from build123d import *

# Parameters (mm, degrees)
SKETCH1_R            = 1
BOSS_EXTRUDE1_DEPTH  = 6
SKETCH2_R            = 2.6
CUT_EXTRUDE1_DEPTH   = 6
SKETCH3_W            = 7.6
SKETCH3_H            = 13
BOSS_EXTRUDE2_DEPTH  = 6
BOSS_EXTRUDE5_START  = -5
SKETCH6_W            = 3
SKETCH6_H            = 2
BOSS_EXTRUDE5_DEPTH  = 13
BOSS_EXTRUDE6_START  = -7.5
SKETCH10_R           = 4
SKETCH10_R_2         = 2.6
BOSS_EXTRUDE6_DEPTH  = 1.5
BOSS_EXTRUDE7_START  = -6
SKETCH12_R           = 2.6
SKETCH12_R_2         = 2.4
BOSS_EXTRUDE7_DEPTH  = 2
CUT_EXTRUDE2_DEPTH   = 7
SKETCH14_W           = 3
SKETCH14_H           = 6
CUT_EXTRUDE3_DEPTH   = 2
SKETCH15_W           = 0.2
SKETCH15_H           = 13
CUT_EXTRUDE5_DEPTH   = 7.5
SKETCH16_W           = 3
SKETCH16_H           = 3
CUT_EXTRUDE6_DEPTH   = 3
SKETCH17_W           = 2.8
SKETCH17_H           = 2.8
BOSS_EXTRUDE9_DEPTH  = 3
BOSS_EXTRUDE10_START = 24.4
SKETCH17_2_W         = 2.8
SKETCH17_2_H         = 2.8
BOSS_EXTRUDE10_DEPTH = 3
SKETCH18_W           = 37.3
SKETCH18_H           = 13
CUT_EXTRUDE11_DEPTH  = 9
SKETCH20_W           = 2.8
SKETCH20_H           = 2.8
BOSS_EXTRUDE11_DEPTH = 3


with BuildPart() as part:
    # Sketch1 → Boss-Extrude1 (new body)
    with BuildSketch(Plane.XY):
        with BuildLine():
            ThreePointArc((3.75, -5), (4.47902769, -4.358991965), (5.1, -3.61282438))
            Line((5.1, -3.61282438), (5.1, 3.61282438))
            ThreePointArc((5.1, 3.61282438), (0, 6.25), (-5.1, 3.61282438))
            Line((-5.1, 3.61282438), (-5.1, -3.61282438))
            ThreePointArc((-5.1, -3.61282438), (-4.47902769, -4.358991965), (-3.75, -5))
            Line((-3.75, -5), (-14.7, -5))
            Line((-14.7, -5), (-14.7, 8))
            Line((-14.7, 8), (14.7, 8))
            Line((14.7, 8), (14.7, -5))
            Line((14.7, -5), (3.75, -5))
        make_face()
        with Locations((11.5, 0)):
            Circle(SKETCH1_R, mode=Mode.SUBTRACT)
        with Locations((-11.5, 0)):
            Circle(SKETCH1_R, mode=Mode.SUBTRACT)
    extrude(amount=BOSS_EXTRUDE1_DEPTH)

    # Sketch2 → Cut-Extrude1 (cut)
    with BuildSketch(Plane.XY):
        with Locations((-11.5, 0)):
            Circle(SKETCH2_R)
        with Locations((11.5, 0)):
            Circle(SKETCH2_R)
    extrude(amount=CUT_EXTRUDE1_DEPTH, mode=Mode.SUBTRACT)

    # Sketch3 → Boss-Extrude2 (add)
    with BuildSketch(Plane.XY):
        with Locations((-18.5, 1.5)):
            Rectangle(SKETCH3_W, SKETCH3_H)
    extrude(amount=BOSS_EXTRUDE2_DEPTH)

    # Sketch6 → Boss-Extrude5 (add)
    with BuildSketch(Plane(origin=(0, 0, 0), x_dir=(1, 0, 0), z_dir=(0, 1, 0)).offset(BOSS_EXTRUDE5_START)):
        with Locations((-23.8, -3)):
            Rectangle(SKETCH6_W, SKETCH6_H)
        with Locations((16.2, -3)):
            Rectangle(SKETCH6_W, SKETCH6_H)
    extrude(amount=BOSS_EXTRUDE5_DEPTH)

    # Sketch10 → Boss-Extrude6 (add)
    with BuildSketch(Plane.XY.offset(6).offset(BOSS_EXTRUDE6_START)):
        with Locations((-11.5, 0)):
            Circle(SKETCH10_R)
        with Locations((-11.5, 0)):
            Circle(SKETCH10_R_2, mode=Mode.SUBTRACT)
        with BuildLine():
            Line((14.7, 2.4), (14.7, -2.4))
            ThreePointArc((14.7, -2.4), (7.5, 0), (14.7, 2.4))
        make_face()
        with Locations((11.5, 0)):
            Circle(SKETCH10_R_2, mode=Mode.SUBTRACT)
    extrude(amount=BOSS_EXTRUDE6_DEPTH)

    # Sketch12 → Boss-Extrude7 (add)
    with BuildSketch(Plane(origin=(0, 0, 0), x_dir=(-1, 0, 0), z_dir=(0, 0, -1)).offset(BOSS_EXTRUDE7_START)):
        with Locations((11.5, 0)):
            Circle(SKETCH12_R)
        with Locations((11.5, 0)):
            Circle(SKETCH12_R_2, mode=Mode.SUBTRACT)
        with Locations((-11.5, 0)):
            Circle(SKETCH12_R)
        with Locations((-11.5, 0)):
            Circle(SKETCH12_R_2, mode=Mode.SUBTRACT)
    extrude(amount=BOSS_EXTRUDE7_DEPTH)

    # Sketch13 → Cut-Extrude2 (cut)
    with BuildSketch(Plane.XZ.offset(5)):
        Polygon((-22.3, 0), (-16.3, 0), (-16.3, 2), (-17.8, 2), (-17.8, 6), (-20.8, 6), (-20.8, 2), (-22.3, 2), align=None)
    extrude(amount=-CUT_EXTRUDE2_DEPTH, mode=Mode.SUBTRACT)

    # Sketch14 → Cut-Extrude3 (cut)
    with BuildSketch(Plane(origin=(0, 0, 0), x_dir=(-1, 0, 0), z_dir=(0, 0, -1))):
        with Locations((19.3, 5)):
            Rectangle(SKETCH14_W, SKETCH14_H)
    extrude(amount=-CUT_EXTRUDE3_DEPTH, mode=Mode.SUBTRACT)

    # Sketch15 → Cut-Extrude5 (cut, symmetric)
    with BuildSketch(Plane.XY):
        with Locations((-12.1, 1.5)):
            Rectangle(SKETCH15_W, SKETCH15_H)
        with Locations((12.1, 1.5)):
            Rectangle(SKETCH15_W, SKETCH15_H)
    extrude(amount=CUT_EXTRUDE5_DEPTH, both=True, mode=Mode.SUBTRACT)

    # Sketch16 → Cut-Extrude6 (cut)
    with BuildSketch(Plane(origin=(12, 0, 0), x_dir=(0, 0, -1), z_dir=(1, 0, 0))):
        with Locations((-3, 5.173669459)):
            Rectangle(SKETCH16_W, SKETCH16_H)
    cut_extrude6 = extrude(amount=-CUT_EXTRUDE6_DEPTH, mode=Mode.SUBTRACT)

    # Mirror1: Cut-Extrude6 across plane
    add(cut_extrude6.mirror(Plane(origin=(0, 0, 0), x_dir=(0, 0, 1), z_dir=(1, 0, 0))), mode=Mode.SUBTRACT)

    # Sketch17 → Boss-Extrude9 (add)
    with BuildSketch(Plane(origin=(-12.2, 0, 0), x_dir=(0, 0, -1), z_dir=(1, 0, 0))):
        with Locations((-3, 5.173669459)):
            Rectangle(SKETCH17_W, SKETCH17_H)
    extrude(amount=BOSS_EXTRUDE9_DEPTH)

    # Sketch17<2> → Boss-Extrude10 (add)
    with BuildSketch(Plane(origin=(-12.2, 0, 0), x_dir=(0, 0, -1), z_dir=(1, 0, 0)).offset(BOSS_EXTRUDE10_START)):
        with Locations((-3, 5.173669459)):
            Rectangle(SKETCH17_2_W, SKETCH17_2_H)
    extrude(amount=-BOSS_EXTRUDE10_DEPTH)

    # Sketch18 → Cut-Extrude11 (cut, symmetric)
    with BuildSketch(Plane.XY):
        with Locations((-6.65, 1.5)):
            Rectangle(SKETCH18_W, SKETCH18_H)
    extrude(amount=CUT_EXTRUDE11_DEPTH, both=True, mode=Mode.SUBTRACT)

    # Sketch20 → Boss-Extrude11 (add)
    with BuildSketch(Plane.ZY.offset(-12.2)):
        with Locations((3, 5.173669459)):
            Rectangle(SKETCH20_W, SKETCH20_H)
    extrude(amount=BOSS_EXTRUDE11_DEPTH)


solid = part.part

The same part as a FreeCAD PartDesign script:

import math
import FreeCAD as App
import Part
import Sketcher
Q = App.Units.Quantity

doc = App.newDocument("Part")
params = doc.addObject("Spreadsheet::Sheet", "Params")
for row, (alias, value) in enumerate([
    ("sketch1_diameter", "2 mm"),
    ("sketch1_height", "13 mm"),
    ("sketch1_radius", "6.25 mm"),
    ("sketch1_width", "29.4 mm"),
    ("pad1_length", "6 mm"),
    ("sketch2_diameter", "5.2 mm"),
    ("pocket1_length", "6 mm"),
    ("sketch3_height", "13 mm"),
    ("sketch3_width", "7.6 mm"),
    ("pad2_length", "6 mm"),
    ("sketch4_width", "3 mm"),
    ("sketch4_height", "2 mm"),
    ("pad3_length", "13 mm"),
    ("sketch5_diameter", "8 mm"),
    ("sketch5_diameter2", "5.2 mm"),
    ("sketch5_height", "4.8 mm"),
    ("pad4_length", "1.5 mm"),
    ("sketch6_diameter", "5.2 mm"),
    ("sketch6_diameter2", "4.8 mm"),
    ("pad5_length", "2 mm"),
    ("sketch7_width", "6 mm"),
    ("sketch7_width2", "3 mm"),
    ("sketch7_height", "2 mm"),
    ("sketch7_height2", "4 mm"),
    ("pocket2_length", "7 mm"),
    ("sketch8_width", "3 mm"),
    ("sketch8_height", "6 mm"),
    ("pocket3_length", "2 mm"),
    ("sketch9_height", "13 mm"),
    ("sketch9_width", "0.2 mm"),
    ("pocket4_length", "15 mm"),
    ("sketch10_width", "3 mm"),
    ("pocket5_length", "3 mm"),
    ("sketch11_width", "2.8 mm"),
    ("pad6_length", "3 mm"),
    ("sketch12_width", "2.8 mm"),
    ("pad7_length", "3 mm"),
    ("sketch13_height", "13 mm"),
    ("sketch13_width", "37.3 mm"),
    ("pocket6_length", "18 mm"),
    ("sketch14_width", "2.8 mm"),
    ("pad8_length", "3 mm"),
], start=1):
    params.set(f"A{row}", alias)
    params.set(f"B{row}", "=" + value)
    params.setAlias(f"B{row}", alias)

body = doc.addObject("PartDesign::Body", "Body")
body.AllowCompound = True

# Sketch on XY plane
sketch1 = doc.addObject("Sketcher::SketchObject", "Sketch")
body.addObject(sketch1)
sketch1.AttachmentSupport = (doc.XY_Plane, [""])
sketch1.MapMode = "FlatFace"
sketch1.addGeometry([
    Part.ArcOfCircle(Part.Circle(App.Vector(0, 0, 0), App.Vector(0, 0, 1), 6.3), math.radians(-53.13), math.radians(-35.31)),  # 0
    Part.LineSegment(App.Vector(3.8, -5, 0), App.Vector(14.7, -5, 0)),  # 1
    Part.LineSegment(App.Vector(14.7, -5, 0), App.Vector(14.7, 8, 0)),  # 2
    Part.LineSegment(App.Vector(14.7, 8, 0), App.Vector(-14.7, 8, 0)),  # 3
    Part.LineSegment(App.Vector(-14.7, 8, 0), App.Vector(-14.7, -5, 0)),  # 4
    Part.LineSegment(App.Vector(-14.7, -5, 0), App.Vector(-3.8, -5, 0)),  # 5
    Part.ArcOfCircle(Part.Circle(App.Vector(0, 0, 0), App.Vector(0, 0, 1), 6.3), math.radians(-144.69), math.radians(-126.87)),  # 6
    Part.LineSegment(App.Vector(-5.1, -3.6, 0), App.Vector(-5.1, 3.6, 0)),  # 7
    Part.ArcOfCircle(Part.Circle(App.Vector(0, 0, 0), App.Vector(0, 0, 1), 6.2), math.radians(35), math.radians(145)),  # 8
    Part.LineSegment(App.Vector(5.1, 3.6, 0), App.Vector(5.1, -3.6, 0)),  # 9
    Part.Circle(App.Vector(11.5, 0, 0), App.Vector(0, 0, 1), 1),  # 10
    Part.Circle(App.Vector(-11.5, 0, 0), App.Vector(0, 0, 1), 1),  # 11
], False)
sketch1.addConstraint([
    Sketcher.Constraint("Coincident", 0, 1, 1, 1),
    Sketcher.Constraint("Coincident", 1, 2, 2, 1),
    Sketcher.Constraint("Coincident", 2, 2, 3, 1),
    Sketcher.Constraint("Coincident", 3, 2, 4, 1),
    Sketcher.Constraint("Coincident", 4, 2, 5, 1),
    Sketcher.Constraint("Coincident", 5, 2, 6, 2),
    Sketcher.Constraint("Coincident", 6, 1, 7, 1),
    Sketcher.Constraint("Coincident", 7, 2, 8, 2),
    Sketcher.Constraint("Coincident", 8, 1, 9, 1),
    Sketcher.Constraint("Coincident", 9, 2, 0, 2),
    Sketcher.Constraint("Horizontal", 1),
    Sketcher.Constraint("Vertical", 2),
    Sketcher.Constraint("Horizontal", 3),
    Sketcher.Constraint("Vertical", 4),
    Sketcher.Constraint("Horizontal", 5),
    Sketcher.Constraint("Vertical", 7),
    Sketcher.Constraint("Vertical", 9),
    Sketcher.Constraint("Coincident", 0, 3, -1, 1),
    Sketcher.Constraint("Coincident", 6, 3, -1, 1),
    Sketcher.Constraint("Coincident", 8, 3, -1, 1),
    Sketcher.Constraint("Equal", 0, 6),
    Sketcher.Constraint("Equal", 6, 8),
    Sketcher.Constraint("Equal", 10, 11),
    Sketcher.Constraint("Symmetric", 10, 3, 11, 3, -1, 1),
    Sketcher.Constraint("Symmetric", 1, 2, 4, 2, -2),
    Sketcher.Constraint("PointOnObject", 10, 3, -1),
    Sketcher.Constraint("Horizontal", 7, 2, 8, 1),
    Sketcher.Constraint("Diameter", 10, Q("2 mm")),
    Sketcher.Constraint("DistanceY", 2, 1, 2, 2, Q("13 mm")),
    Sketcher.Constraint("Radius", 0, Q("6.25 mm")),
    Sketcher.Constraint("DistanceX", 3, 2, 3, 1, Q("29.4 mm")),
    Sketcher.Constraint("DistanceY", 0, 1, -1, 1, Q("5 mm")),
    Sketcher.Constraint("DistanceX", 11, 3, 10, 3, Q("23 mm")),
    Sketcher.Constraint("DistanceX", 6, 1, -1, 1, Q("5.1 mm")),
])
sketch1.setExpression("Constraints[27]", "Params.sketch1_diameter")
sketch1.setExpression("Constraints[28]", "Params.sketch1_height")
sketch1.setExpression("Constraints[29]", "Params.sketch1_radius")
sketch1.setExpression("Constraints[30]", "Params.sketch1_width")
pad1 = doc.addObject("PartDesign::Pad", "Pad")
body.addObject(pad1)
pad1.Profile = sketch1
pad1.setExpression("Length", "Params.pad1_length")

# Sketch on XY plane
sketch2 = doc.addObject("Sketcher::SketchObject", "Sketch001")
body.addObject(sketch2)
sketch2.AttachmentSupport = (doc.XY_Plane, [""])
sketch2.MapMode = "FlatFace"
sketch2.addGeometry([
    Part.Circle(App.Vector(-11.5, 0, 0), App.Vector(0, 0, 1), 2.6),
    Part.Circle(App.Vector(11.5, 0, 0), App.Vector(0, 0, 1), 2.6),
], False)
sketch2.addConstraint([
    Sketcher.Constraint("Equal", 0, 1),
    Sketcher.Constraint("Symmetric", 0, 3, 1, 3, -1, 1),
    Sketcher.Constraint("PointOnObject", 0, 3, -1),
    Sketcher.Constraint("Diameter", 0, Q("5.2 mm")),
    Sketcher.Constraint("DistanceX", 0, 3, 1, 3, Q("23 mm")),
])
sketch2.setExpression("Constraints[3]", "Params.sketch2_diameter")
pocket1 = doc.addObject("PartDesign::Pocket", "Pocket")
body.addObject(pocket1)
pocket1.Profile = sketch2
pocket1.setExpression("Length", "Params.pocket1_length")
pocket1.Reversed = True

# Sketch on XY plane
sketch3 = doc.addObject("Sketcher::SketchObject", "Sketch002")
body.addObject(sketch3)
sketch3.AttachmentSupport = (doc.XY_Plane, [""])
sketch3.MapMode = "FlatFace"
sketch3.addGeometry([
    Part.LineSegment(App.Vector(-22, 8, 0), App.Vector(-22, -5, 0)),
    Part.LineSegment(App.Vector(-22, -5, 0), App.Vector(-15, -5, 0)),
    Part.LineSegment(App.Vector(-15, -5, 0), App.Vector(-15, 8, 0)),
    Part.LineSegment(App.Vector(-15, 8, 0), App.Vector(-22, 8, 0)),
], False)
sketch3.addConstraint([
    Sketcher.Constraint("Coincident", 0, 2, 1, 1),
    Sketcher.Constraint("Coincident", 1, 2, 2, 1),
    Sketcher.Constraint("Coincident", 2, 2, 3, 1),
    Sketcher.Constraint("Coincident", 3, 2, 0, 1),
    Sketcher.Constraint("Vertical", 0),
    Sketcher.Constraint("Horizontal", 1),
    Sketcher.Constraint("Vertical", 2),
    Sketcher.Constraint("Horizontal", 3),
    Sketcher.Constraint("DistanceY", 0, 2, 0, 1, Q("13 mm")),
    Sketcher.Constraint("DistanceX", 1, 1, 1, 2, Q("7.6 mm")),
    Sketcher.Constraint("DistanceY", 0, 2, -1, 1, Q("5 mm")),
    Sketcher.Constraint("DistanceX", 0, 2, -1, 1, Q("22.3 mm")),
])
sketch3.setExpression("Constraints[8]", "Params.sketch3_height")
sketch3.setExpression("Constraints[9]", "Params.sketch3_width")
pad2 = doc.addObject("PartDesign::Pad", "Pad001")
body.addObject(pad2)
pad2.Profile = sketch3
pad2.setExpression("Length", "Params.pad2_length")

# Sketch on XZ plane
sketch4 = doc.addObject("Sketcher::SketchObject", "Sketch003")
body.addObject(sketch4)
sketch4.AttachmentSupport = (doc.XZ_Plane, [""])
sketch4.MapMode = "FlatFace"
sketch4.AttachmentOffset = App.Placement(App.Vector(0, 0, 5), App.Rotation())
sketch4.addGeometry([
    Part.LineSegment(App.Vector(-25.3, 2, 0), App.Vector(-25.3, 4, 0)),  # 0
    Part.LineSegment(App.Vector(-25.3, 4, 0), App.Vector(-22.3, 4, 0)),  # 1
    Part.LineSegment(App.Vector(-22.3, 4, 0), App.Vector(-22.3, 2, 0)),  # 2
    Part.LineSegment(App.Vector(-22.3, 2, 0), App.Vector(-25.3, 2, 0)),  # 3
    Part.LineSegment(App.Vector(14.7, 2, 0), App.Vector(14.7, 4, 0)),  # 4
    Part.LineSegment(App.Vector(14.7, 4, 0), App.Vector(17.7, 4, 0)),  # 5
    Part.LineSegment(App.Vector(17.7, 4, 0), App.Vector(17.7, 2, 0)),  # 6
    Part.LineSegment(App.Vector(17.7, 2, 0), App.Vector(14.7, 2, 0)),  # 7
], False)
sketch4.addConstraint([
    Sketcher.Constraint("Coincident", 0, 2, 1, 1),
    Sketcher.Constraint("Coincident", 1, 2, 2, 1),
    Sketcher.Constraint("Coincident", 2, 2, 3, 1),
    Sketcher.Constraint("Coincident", 3, 2, 0, 1),
    Sketcher.Constraint("Coincident", 4, 2, 5, 1),
    Sketcher.Constraint("Coincident", 5, 2, 6, 1),
    Sketcher.Constraint("Coincident", 6, 2, 7, 1),
    Sketcher.Constraint("Coincident", 7, 2, 4, 1),
    Sketcher.Constraint("Vertical", 0),
    Sketcher.Constraint("Horizontal", 1),
    Sketcher.Constraint("Vertical", 2),
    Sketcher.Constraint("Horizontal", 3),
    Sketcher.Constraint("Vertical", 4),
    Sketcher.Constraint("Horizontal", 5),
    Sketcher.Constraint("Vertical", 6),
    Sketcher.Constraint("Horizontal", 7),
    Sketcher.Constraint("Horizontal", 1, 2, 4, 2),
    Sketcher.Constraint("Horizontal", 3, 2, 6, 2),
    Sketcher.Constraint("Equal", 3, 5),
    Sketcher.Constraint("DistanceX", 1, 1, 1, 2, Q("3 mm")),
    Sketcher.Constraint("DistanceY", 0, 1, 0, 2, Q("2 mm")),
    Sketcher.Constraint("DistanceY", -1, 1, 0, 2, Q("4 mm")),
    Sketcher.Constraint("DistanceX", 1, 2, 4, 2, Q("37 mm")),
    Sketcher.Constraint("DistanceX", 0, 2, -1, 1, Q("25.3 mm")),
])
sketch4.setExpression("Constraints[19]", "Params.sketch4_width")
sketch4.setExpression("Constraints[20]", "Params.sketch4_height")
pad3 = doc.addObject("PartDesign::Pad", "Pad002")
body.addObject(pad3)
pad3.Profile = sketch4
pad3.setExpression("Length", "Params.pad3_length")
pad3.Reversed = True

# Sketch on XY plane
sketch5 = doc.addObject("Sketcher::SketchObject", "Sketch004")
body.addObject(sketch5)
sketch5.AttachmentSupport = (doc.XY_Plane, [""])
sketch5.MapMode = "FlatFace"
sketch5.AttachmentOffset = App.Placement(App.Vector(0, 0, -1.5), App.Rotation())
sketch5.addGeometry([
    Part.Circle(App.Vector(-11.5, 0, 0), App.Vector(0, 0, 1), 4),  # 0
    Part.Circle(App.Vector(-11.5, 0, 0), App.Vector(0, 0, 1), 2.6),  # 1
    Part.LineSegment(App.Vector(14.7, -2.4, 0), App.Vector(14.7, 2.4, 0)),  # 2
    Part.ArcOfCircle(Part.Circle(App.Vector(11.5, 0, 0), App.Vector(0, 0, 1), 4), math.radians(37), math.radians(323)),  # 3
    Part.Circle(App.Vector(11.5, 0, 0), App.Vector(0, 0, 1), 2.6),  # 4
], False)
sketch5.addConstraint([
    Sketcher.Constraint("Coincident", 2, 1, 3, 2),
    Sketcher.Constraint("Coincident", 3, 1, 2, 2),
    Sketcher.Constraint("Vertical", 2),
    Sketcher.Constraint("Coincident", 1, 3, 0, 3),
    Sketcher.Constraint("Coincident", 4, 3, 3, 3),
    Sketcher.Constraint("Equal", 0, 3),
    Sketcher.Constraint("Equal", 1, 4),
    Sketcher.Constraint("Symmetric", 0, 3, 3, 3, -1, 1),
    Sketcher.Constraint("PointOnObject", 0, 3, -1),
    Sketcher.Constraint("Diameter", 0, Q("8 mm")),
    Sketcher.Constraint("Diameter", 1, Q("5.2 mm")),
    Sketcher.Constraint("DistanceY", 2, 1, 2, 2, Q("4.8 mm")),
    Sketcher.Constraint("DistanceX", 0, 3, 3, 3, Q("23 mm")),
])
sketch5.setExpression("Constraints[9]", "Params.sketch5_diameter")
sketch5.setExpression("Constraints[10]", "Params.sketch5_diameter2")
sketch5.setExpression("Constraints[11]", "Params.sketch5_height")
pad4 = doc.addObject("PartDesign::Pad", "Pad003")
body.addObject(pad4)
pad4.Profile = sketch5
pad4.setExpression("Length", "Params.pad4_length")

# Sketch on XY plane
sketch6 = doc.addObject("Sketcher::SketchObject", "Sketch005")
body.addObject(sketch6)
sketch6.AttachmentSupport = (doc.XY_Plane, [""])
sketch6.MapMode = "FlatFace"
sketch6.AttachmentOffset = App.Placement(App.Vector(0, 0, 6), App.Rotation())
sketch6.addGeometry([
    Part.Circle(App.Vector(-11.5, 0, 0), App.Vector(0, 0, 1), 2.6),
    Part.Circle(App.Vector(-11.5, 0, 0), App.Vector(0, 0, 1), 2.4),
    Part.Circle(App.Vector(11.5, 0, 0), App.Vector(0, 0, 1), 2.6),
    Part.Circle(App.Vector(11.5, 0, 0), App.Vector(0, 0, 1), 2.4),
], False)
sketch6.addConstraint([
    Sketcher.Constraint("Coincident", 1, 3, 0, 3),
    Sketcher.Constraint("Coincident", 3, 3, 2, 3),
    Sketcher.Constraint("Equal", 0, 2),
    Sketcher.Constraint("Equal", 1, 3),
    Sketcher.Constraint("Symmetric", 0, 3, 2, 3, -1, 1),
    Sketcher.Constraint("PointOnObject", 0, 3, -1),
    Sketcher.Constraint("Diameter", 0, Q("5.2 mm")),
    Sketcher.Constraint("Diameter", 1, Q("4.8 mm")),
    Sketcher.Constraint("DistanceX", 0, 3, 2, 3, Q("23 mm")),
])
sketch6.setExpression("Constraints[6]", "Params.sketch6_diameter")
sketch6.setExpression("Constraints[7]", "Params.sketch6_diameter2")
pad5 = doc.addObject("PartDesign::Pad", "Pad004")
body.addObject(pad5)
pad5.Profile = sketch6
pad5.setExpression("Length", "Params.pad5_length")
pad5.Reversed = True

# Sketch on XZ plane
sketch7 = doc.addObject("Sketcher::SketchObject", "Sketch006")
body.addObject(sketch7)
sketch7.AttachmentSupport = (doc.XZ_Plane, [""])
sketch7.MapMode = "FlatFace"
sketch7.AttachmentOffset = App.Placement(App.Vector(0, 0, 5), App.Rotation())
sketch7.addGeometry([
    Part.LineSegment(App.Vector(-22.3, 0, 0), App.Vector(-16.3, 0, 0)),  # 0
    Part.LineSegment(App.Vector(-16.3, 0, 0), App.Vector(-16.3, 2, 0)),  # 1
    Part.LineSegment(App.Vector(-16.3, 2, 0), App.Vector(-17.8, 2, 0)),  # 2
    Part.LineSegment(App.Vector(-17.8, 2, 0), App.Vector(-17.8, 6, 0)),  # 3
    Part.LineSegment(App.Vector(-17.8, 6, 0), App.Vector(-20.8, 6, 0)),  # 4
    Part.LineSegment(App.Vector(-20.8, 6, 0), App.Vector(-20.8, 2, 0)),  # 5
    Part.LineSegment(App.Vector(-20.8, 2, 0), App.Vector(-22.3, 2, 0)),  # 6
    Part.LineSegment(App.Vector(-22.3, 2, 0), App.Vector(-22.3, 0, 0)),  # 7
], False)
sketch7.addConstraint([
    Sketcher.Constraint("Coincident", 0, 2, 1, 1),
    Sketcher.Constraint("Coincident", 1, 2, 2, 1),
    Sketcher.Constraint("Coincident", 2, 2, 3, 1),
    Sketcher.Constraint("Coincident", 3, 2, 4, 1),
    Sketcher.Constraint("Coincident", 4, 2, 5, 1),
    Sketcher.Constraint("Coincident", 5, 2, 6, 1),
    Sketcher.Constraint("Coincident", 6, 2, 7, 1),
    Sketcher.Constraint("Coincident", 7, 2, 0, 1),
    Sketcher.Constraint("Horizontal", 0),
    Sketcher.Constraint("Vertical", 1),
    Sketcher.Constraint("Horizontal", 2),
    Sketcher.Constraint("Vertical", 3),
    Sketcher.Constraint("Horizontal", 4),
    Sketcher.Constraint("Vertical", 5),
    Sketcher.Constraint("Horizontal", 6),
    Sketcher.Constraint("Vertical", 7),
    Sketcher.Constraint("PointOnObject", 0, 2, -1),
    Sketcher.Constraint("Horizontal", 2, 2, 5, 2),
    Sketcher.Constraint("Equal", 2, 6),
    Sketcher.Constraint("DistanceX", 0, 1, 0, 2, Q("6 mm")),
    Sketcher.Constraint("DistanceX", 4, 2, 4, 1, Q("3 mm")),
    Sketcher.Constraint("DistanceY", 1, 1, 1, 2, Q("2 mm")),
    Sketcher.Constraint("DistanceY", 3, 1, 3, 2, Q("4 mm")),
    Sketcher.Constraint("DistanceX", 0, 2, -1, 1, Q("16.3 mm")),
])
sketch7.setExpression("Constraints[19]", "Params.sketch7_width")
sketch7.setExpression("Constraints[20]", "Params.sketch7_width2")
sketch7.setExpression("Constraints[21]", "Params.sketch7_height")
sketch7.setExpression("Constraints[22]", "Params.sketch7_height2")
pocket2 = doc.addObject("PartDesign::Pocket", "Pocket001")
body.addObject(pocket2)
pocket2.Profile = sketch7
pocket2.setExpression("Length", "Params.pocket2_length")

# Sketch on XY plane
sketch8 = doc.addObject("Sketcher::SketchObject", "Sketch007")
body.addObject(sketch8)
sketch8.AttachmentSupport = (doc.XY_Plane, [""])
sketch8.MapMode = "FlatFace"
sketch8.addGeometry([
    Part.LineSegment(App.Vector(-17.8, 8, 0), App.Vector(-17.8, 2, 0)),
    Part.LineSegment(App.Vector(-17.8, 2, 0), App.Vector(-20.8, 2, 0)),
    Part.LineSegment(App.Vector(-20.8, 2, 0), App.Vector(-20.8, 8, 0)),
    Part.LineSegment(App.Vector(-20.8, 8, 0), App.Vector(-17.8, 8, 0)),
], False)
sketch8.addConstraint([
    Sketcher.Constraint("Coincident", 0, 2, 1, 1),
    Sketcher.Constraint("Coincident", 1, 2, 2, 1),
    Sketcher.Constraint("Coincident", 2, 2, 3, 1),
    Sketcher.Constraint("Coincident", 3, 2, 0, 1),
    Sketcher.Constraint("Vertical", 0),
    Sketcher.Constraint("Horizontal", 1),
    Sketcher.Constraint("Vertical", 2),
    Sketcher.Constraint("Horizontal", 3),
    Sketcher.Constraint("DistanceX", 1, 2, 1, 1, Q("3 mm")),
    Sketcher.Constraint("DistanceY", 0, 2, 0, 1, Q("6 mm")),
    Sketcher.Constraint("DistanceY", -1, 1, 0, 2, Q("2 mm")),
    Sketcher.Constraint("DistanceX", 0, 2, -1, 1, Q("17.8 mm")),
])
sketch8.setExpression("Constraints[8]", "Params.sketch8_width")
sketch8.setExpression("Constraints[9]", "Params.sketch8_height")
pocket3 = doc.addObject("PartDesign::Pocket", "Pocket002")
body.addObject(pocket3)
pocket3.Profile = sketch8
pocket3.setExpression("Length", "Params.pocket3_length")
pocket3.Reversed = True

# Sketch on XY plane
sketch9 = doc.addObject("Sketcher::SketchObject", "Sketch008")
body.addObject(sketch9)
sketch9.AttachmentSupport = (doc.XY_Plane, [""])
sketch9.MapMode = "FlatFace"
sketch9.addGeometry([
    Part.LineSegment(App.Vector(-12.2, 8, 0), App.Vector(-12.2, -5, 0)),  # 0
    Part.LineSegment(App.Vector(-12.2, -5, 0), App.Vector(-12, -5, 0)),  # 1
    Part.LineSegment(App.Vector(-12, -5, 0), App.Vector(-12, 8, 0)),  # 2
    Part.LineSegment(App.Vector(-12, 8, 0), App.Vector(-12.2, 8, 0)),  # 3
    Part.LineSegment(App.Vector(12, 8, 0), App.Vector(12, -5, 0)),  # 4
    Part.LineSegment(App.Vector(12, -5, 0), App.Vector(12.2, -5, 0)),  # 5
    Part.LineSegment(App.Vector(12.2, -5, 0), App.Vector(12.2, 8, 0)),  # 6
    Part.LineSegment(App.Vector(12.2, 8, 0), App.Vector(12, 8, 0)),  # 7
], False)
sketch9.addConstraint([
    Sketcher.Constraint("Coincident", 0, 2, 1, 1),
    Sketcher.Constraint("Coincident", 1, 2, 2, 1),
    Sketcher.Constraint("Coincident", 2, 2, 3, 1),
    Sketcher.Constraint("Coincident", 3, 2, 0, 1),
    Sketcher.Constraint("Coincident", 4, 2, 5, 1),
    Sketcher.Constraint("Coincident", 5, 2, 6, 1),
    Sketcher.Constraint("Coincident", 6, 2, 7, 1),
    Sketcher.Constraint("Coincident", 7, 2, 4, 1),
    Sketcher.Constraint("Vertical", 0),
    Sketcher.Constraint("Horizontal", 1),
    Sketcher.Constraint("Vertical", 2),
    Sketcher.Constraint("Horizontal", 3),
    Sketcher.Constraint("Vertical", 4),
    Sketcher.Constraint("Horizontal", 5),
    Sketcher.Constraint("Vertical", 6),
    Sketcher.Constraint("Horizontal", 7),
    Sketcher.Constraint("Symmetric", 1, 2, 4, 2, -2),
    Sketcher.Constraint("Symmetric", 3, 2, 6, 2, -2),
    Sketcher.Constraint("DistanceY", 0, 2, 0, 1, Q("13 mm")),
    Sketcher.Constraint("DistanceX", 1, 1, 1, 2, Q("0.2 mm")),
    Sketcher.Constraint("DistanceY", 0, 2, -1, 1, Q("5 mm")),
    Sketcher.Constraint("DistanceX", 1, 2, -1, 1, Q("12 mm")),
])
sketch9.setExpression("Constraints[18]", "Params.sketch9_height")
sketch9.setExpression("Constraints[19]", "Params.sketch9_width")
pocket4 = doc.addObject("PartDesign::Pocket", "Pocket003")
body.addObject(pocket4)
pocket4.Profile = sketch9
pocket4.setExpression("Length", "Params.pocket4_length")
pocket4.Midplane = True

# Sketch on YZ plane
sketch10 = doc.addObject("Sketcher::SketchObject", "Sketch009")
body.addObject(sketch10)
sketch10.AttachmentSupport = (doc.YZ_Plane, [""])
sketch10.MapMode = "FlatFace"
sketch10.AttachmentOffset = App.Placement(App.Vector(0, 0, 12), App.Rotation())
sketch10.addGeometry([
    Part.LineSegment(App.Vector(6.7, 4.5, 0), App.Vector(3.7, 4.5, 0)),
    Part.LineSegment(App.Vector(3.7, 4.5, 0), App.Vector(3.7, 1.5, 0)),
    Part.LineSegment(App.Vector(3.7, 1.5, 0), App.Vector(6.7, 1.5, 0)),
    Part.LineSegment(App.Vector(6.7, 1.5, 0), App.Vector(6.7, 4.5, 0)),
], False)
sketch10.addConstraint([
    Sketcher.Constraint("Coincident", 0, 2, 1, 1),
    Sketcher.Constraint("Coincident", 1, 2, 2, 1),
    Sketcher.Constraint("Coincident", 2, 2, 3, 1),
    Sketcher.Constraint("Coincident", 3, 2, 0, 1),
    Sketcher.Constraint("Horizontal", 0),
    Sketcher.Constraint("Vertical", 1),
    Sketcher.Constraint("Horizontal", 2),
    Sketcher.Constraint("Vertical", 3),
    Sketcher.Constraint("Equal", 2, 1),
    Sketcher.Constraint("DistanceX", 0, 2, 0, 1, Q("3 mm")),
    Sketcher.Constraint("DistanceY", -1, 1, 0, 2, Q("4.5 mm")),
    Sketcher.Constraint("DistanceX", -1, 1, 0, 2, Q("3.673669 mm")),
])
sketch10.setExpression("Constraints[9]", "Params.sketch10_width")
pocket5 = doc.addObject("PartDesign::Pocket", "Pocket004")
body.addObject(pocket5)
pocket5.Profile = sketch10
pocket5.setExpression("Length", "Params.pocket5_length")
doc.recompute()

mirrored = doc.addObject("PartDesign::Mirrored", "Mirrored")
body.addObject(mirrored)
mirrored.Originals = [pocket5]
mirrored.MirrorPlane = (doc.YZ_Plane, [""])
body.Tip = mirrored

# Sketch on YZ plane
sketch11 = doc.addObject("Sketcher::SketchObject", "Sketch010")
body.addObject(sketch11)
sketch11.AttachmentSupport = (doc.YZ_Plane, [""])
sketch11.MapMode = "FlatFace"
sketch11.AttachmentOffset = App.Placement(App.Vector(0, 0, -12.2), App.Rotation())
sketch11.addGeometry([
    Part.LineSegment(App.Vector(6.6, 4.4, 0), App.Vector(3.8, 4.4, 0)),
    Part.LineSegment(App.Vector(3.8, 4.4, 0), App.Vector(3.8, 1.6, 0)),
    Part.LineSegment(App.Vector(3.8, 1.6, 0), App.Vector(6.6, 1.6, 0)),
    Part.LineSegment(App.Vector(6.6, 1.6, 0), App.Vector(6.6, 4.4, 0)),
], False)
sketch11.addConstraint([
    Sketcher.Constraint("Coincident", 0, 2, 1, 1),
    Sketcher.Constraint("Coincident", 1, 2, 2, 1),
    Sketcher.Constraint("Coincident", 2, 2, 3, 1),
    Sketcher.Constraint("Coincident", 3, 2, 0, 1),
    Sketcher.Constraint("Horizontal", 0),
    Sketcher.Constraint("Vertical", 1),
    Sketcher.Constraint("Horizontal", 2),
    Sketcher.Constraint("Vertical", 3),
    Sketcher.Constraint("Equal", 2, 1),
    Sketcher.Constraint("DistanceX", 0, 2, 0, 1, Q("2.8 mm")),
    Sketcher.Constraint("DistanceY", -1, 1, 0, 2, Q("4.4 mm")),
    Sketcher.Constraint("DistanceX", -1, 1, 0, 2, Q("3.773669 mm")),
])
sketch11.setExpression("Constraints[9]", "Params.sketch11_width")
pad6 = doc.addObject("PartDesign::Pad", "Pad005")
body.addObject(pad6)
pad6.Profile = sketch11
pad6.setExpression("Length", "Params.pad6_length")

# Sketch on YZ plane
sketch12 = doc.addObject("Sketcher::SketchObject", "Sketch011")
body.addObject(sketch12)
sketch12.AttachmentSupport = (doc.YZ_Plane, [""])
sketch12.MapMode = "FlatFace"
sketch12.AttachmentOffset = App.Placement(App.Vector(0, 0, 12.2), App.Rotation())
sketch12.addGeometry([
    Part.LineSegment(App.Vector(6.6, 4.4, 0), App.Vector(3.8, 4.4, 0)),
    Part.LineSegment(App.Vector(3.8, 4.4, 0), App.Vector(3.8, 1.6, 0)),
    Part.LineSegment(App.Vector(3.8, 1.6, 0), App.Vector(6.6, 1.6, 0)),
    Part.LineSegment(App.Vector(6.6, 1.6, 0), App.Vector(6.6, 4.4, 0)),
], False)
sketch12.addConstraint([
    Sketcher.Constraint("Coincident", 0, 2, 1, 1),
    Sketcher.Constraint("Coincident", 1, 2, 2, 1),
    Sketcher.Constraint("Coincident", 2, 2, 3, 1),
    Sketcher.Constraint("Coincident", 3, 2, 0, 1),
    Sketcher.Constraint("Horizontal", 0),
    Sketcher.Constraint("Vertical", 1),
    Sketcher.Constraint("Horizontal", 2),
    Sketcher.Constraint("Vertical", 3),
    Sketcher.Constraint("Equal", 2, 1),
    Sketcher.Constraint("DistanceX", 0, 2, 0, 1, Q("2.8 mm")),
    Sketcher.Constraint("DistanceY", -1, 1, 0, 2, Q("4.4 mm")),
    Sketcher.Constraint("DistanceX", -1, 1, 0, 2, Q("3.773669 mm")),
])
sketch12.setExpression("Constraints[9]", "Params.sketch12_width")
pad7 = doc.addObject("PartDesign::Pad", "Pad006")
body.addObject(pad7)
pad7.Profile = sketch12
pad7.setExpression("Length", "Params.pad7_length")
pad7.Reversed = True

# Sketch on XY plane
sketch13 = doc.addObject("Sketcher::SketchObject", "Sketch012")
body.addObject(sketch13)
sketch13.AttachmentSupport = (doc.XY_Plane, [""])
sketch13.MapMode = "FlatFace"
sketch13.addGeometry([
    Part.LineSegment(App.Vector(-25, 8, 0), App.Vector(-25, -5, 0)),
    Part.LineSegment(App.Vector(-25, -5, 0), App.Vector(12, -5, 0)),
    Part.LineSegment(App.Vector(12, -5, 0), App.Vector(12, 8, 0)),
    Part.LineSegment(App.Vector(12, 8, 0), App.Vector(-25, 8, 0)),
], False)
sketch13.addConstraint([
    Sketcher.Constraint("Coincident", 0, 2, 1, 1),
    Sketcher.Constraint("Coincident", 1, 2, 2, 1),
    Sketcher.Constraint("Coincident", 2, 2, 3, 1),
    Sketcher.Constraint("Coincident", 3, 2, 0, 1),
    Sketcher.Constraint("Vertical", 0),
    Sketcher.Constraint("Horizontal", 1),
    Sketcher.Constraint("Vertical", 2),
    Sketcher.Constraint("Horizontal", 3),
    Sketcher.Constraint("DistanceY", 0, 2, 0, 1, Q("13 mm")),
    Sketcher.Constraint("DistanceX", 1, 1, 1, 2, Q("37.3 mm")),
    Sketcher.Constraint("DistanceY", 0, 2, -1, 1, Q("5 mm")),
    Sketcher.Constraint("DistanceX", -1, 1, 1, 2, Q("12 mm")),
])
sketch13.setExpression("Constraints[8]", "Params.sketch13_height")
sketch13.setExpression("Constraints[9]", "Params.sketch13_width")
pocket6 = doc.addObject("PartDesign::Pocket", "Pocket005")
body.addObject(pocket6)
pocket6.Profile = sketch13
pocket6.setExpression("Length", "Params.pocket6_length")
pocket6.Midplane = True

# Sketch on YZ plane
sketch14 = doc.addObject("Sketcher::SketchObject", "Sketch013")
body.addObject(sketch14)
sketch14.AttachmentSupport = (doc.YZ_Plane, [""])
sketch14.MapMode = "FlatFace"
sketch14.AttachmentOffset = App.Placement(App.Vector(0, 0, 12.2), App.Rotation())
sketch14.addGeometry([
    Part.LineSegment(App.Vector(6.6, 1.6, 0), App.Vector(3.8, 1.6, 0)),
    Part.LineSegment(App.Vector(3.8, 1.6, 0), App.Vector(3.8, 4.4, 0)),
    Part.LineSegment(App.Vector(3.8, 4.4, 0), App.Vector(6.6, 4.4, 0)),
    Part.LineSegment(App.Vector(6.6, 4.4, 0), App.Vector(6.6, 1.6, 0)),
], False)
sketch14.addConstraint([
    Sketcher.Constraint("Coincident", 0, 2, 1, 1),
    Sketcher.Constraint("Coincident", 1, 2, 2, 1),
    Sketcher.Constraint("Coincident", 2, 2, 3, 1),
    Sketcher.Constraint("Coincident", 3, 2, 0, 1),
    Sketcher.Constraint("Horizontal", 0),
    Sketcher.Constraint("Vertical", 1),
    Sketcher.Constraint("Horizontal", 2),
    Sketcher.Constraint("Vertical", 3),
    Sketcher.Constraint("Equal", 2, 1),
    Sketcher.Constraint("DistanceX", 0, 2, 0, 1, Q("2.8 mm")),
    Sketcher.Constraint("DistanceY", -1, 1, 0, 2, Q("1.6 mm")),
    Sketcher.Constraint("DistanceX", -1, 1, 0, 2, Q("3.773669 mm")),
])
sketch14.setExpression("Constraints[9]", "Params.sketch14_width")
pad8 = doc.addObject("PartDesign::Pad", "Pad007")
body.addObject(pad8)
pad8.Profile = sketch14
pad8.setExpression("Length", "Params.pad8_length")
pad8.Reversed = True

doc.recompute()
